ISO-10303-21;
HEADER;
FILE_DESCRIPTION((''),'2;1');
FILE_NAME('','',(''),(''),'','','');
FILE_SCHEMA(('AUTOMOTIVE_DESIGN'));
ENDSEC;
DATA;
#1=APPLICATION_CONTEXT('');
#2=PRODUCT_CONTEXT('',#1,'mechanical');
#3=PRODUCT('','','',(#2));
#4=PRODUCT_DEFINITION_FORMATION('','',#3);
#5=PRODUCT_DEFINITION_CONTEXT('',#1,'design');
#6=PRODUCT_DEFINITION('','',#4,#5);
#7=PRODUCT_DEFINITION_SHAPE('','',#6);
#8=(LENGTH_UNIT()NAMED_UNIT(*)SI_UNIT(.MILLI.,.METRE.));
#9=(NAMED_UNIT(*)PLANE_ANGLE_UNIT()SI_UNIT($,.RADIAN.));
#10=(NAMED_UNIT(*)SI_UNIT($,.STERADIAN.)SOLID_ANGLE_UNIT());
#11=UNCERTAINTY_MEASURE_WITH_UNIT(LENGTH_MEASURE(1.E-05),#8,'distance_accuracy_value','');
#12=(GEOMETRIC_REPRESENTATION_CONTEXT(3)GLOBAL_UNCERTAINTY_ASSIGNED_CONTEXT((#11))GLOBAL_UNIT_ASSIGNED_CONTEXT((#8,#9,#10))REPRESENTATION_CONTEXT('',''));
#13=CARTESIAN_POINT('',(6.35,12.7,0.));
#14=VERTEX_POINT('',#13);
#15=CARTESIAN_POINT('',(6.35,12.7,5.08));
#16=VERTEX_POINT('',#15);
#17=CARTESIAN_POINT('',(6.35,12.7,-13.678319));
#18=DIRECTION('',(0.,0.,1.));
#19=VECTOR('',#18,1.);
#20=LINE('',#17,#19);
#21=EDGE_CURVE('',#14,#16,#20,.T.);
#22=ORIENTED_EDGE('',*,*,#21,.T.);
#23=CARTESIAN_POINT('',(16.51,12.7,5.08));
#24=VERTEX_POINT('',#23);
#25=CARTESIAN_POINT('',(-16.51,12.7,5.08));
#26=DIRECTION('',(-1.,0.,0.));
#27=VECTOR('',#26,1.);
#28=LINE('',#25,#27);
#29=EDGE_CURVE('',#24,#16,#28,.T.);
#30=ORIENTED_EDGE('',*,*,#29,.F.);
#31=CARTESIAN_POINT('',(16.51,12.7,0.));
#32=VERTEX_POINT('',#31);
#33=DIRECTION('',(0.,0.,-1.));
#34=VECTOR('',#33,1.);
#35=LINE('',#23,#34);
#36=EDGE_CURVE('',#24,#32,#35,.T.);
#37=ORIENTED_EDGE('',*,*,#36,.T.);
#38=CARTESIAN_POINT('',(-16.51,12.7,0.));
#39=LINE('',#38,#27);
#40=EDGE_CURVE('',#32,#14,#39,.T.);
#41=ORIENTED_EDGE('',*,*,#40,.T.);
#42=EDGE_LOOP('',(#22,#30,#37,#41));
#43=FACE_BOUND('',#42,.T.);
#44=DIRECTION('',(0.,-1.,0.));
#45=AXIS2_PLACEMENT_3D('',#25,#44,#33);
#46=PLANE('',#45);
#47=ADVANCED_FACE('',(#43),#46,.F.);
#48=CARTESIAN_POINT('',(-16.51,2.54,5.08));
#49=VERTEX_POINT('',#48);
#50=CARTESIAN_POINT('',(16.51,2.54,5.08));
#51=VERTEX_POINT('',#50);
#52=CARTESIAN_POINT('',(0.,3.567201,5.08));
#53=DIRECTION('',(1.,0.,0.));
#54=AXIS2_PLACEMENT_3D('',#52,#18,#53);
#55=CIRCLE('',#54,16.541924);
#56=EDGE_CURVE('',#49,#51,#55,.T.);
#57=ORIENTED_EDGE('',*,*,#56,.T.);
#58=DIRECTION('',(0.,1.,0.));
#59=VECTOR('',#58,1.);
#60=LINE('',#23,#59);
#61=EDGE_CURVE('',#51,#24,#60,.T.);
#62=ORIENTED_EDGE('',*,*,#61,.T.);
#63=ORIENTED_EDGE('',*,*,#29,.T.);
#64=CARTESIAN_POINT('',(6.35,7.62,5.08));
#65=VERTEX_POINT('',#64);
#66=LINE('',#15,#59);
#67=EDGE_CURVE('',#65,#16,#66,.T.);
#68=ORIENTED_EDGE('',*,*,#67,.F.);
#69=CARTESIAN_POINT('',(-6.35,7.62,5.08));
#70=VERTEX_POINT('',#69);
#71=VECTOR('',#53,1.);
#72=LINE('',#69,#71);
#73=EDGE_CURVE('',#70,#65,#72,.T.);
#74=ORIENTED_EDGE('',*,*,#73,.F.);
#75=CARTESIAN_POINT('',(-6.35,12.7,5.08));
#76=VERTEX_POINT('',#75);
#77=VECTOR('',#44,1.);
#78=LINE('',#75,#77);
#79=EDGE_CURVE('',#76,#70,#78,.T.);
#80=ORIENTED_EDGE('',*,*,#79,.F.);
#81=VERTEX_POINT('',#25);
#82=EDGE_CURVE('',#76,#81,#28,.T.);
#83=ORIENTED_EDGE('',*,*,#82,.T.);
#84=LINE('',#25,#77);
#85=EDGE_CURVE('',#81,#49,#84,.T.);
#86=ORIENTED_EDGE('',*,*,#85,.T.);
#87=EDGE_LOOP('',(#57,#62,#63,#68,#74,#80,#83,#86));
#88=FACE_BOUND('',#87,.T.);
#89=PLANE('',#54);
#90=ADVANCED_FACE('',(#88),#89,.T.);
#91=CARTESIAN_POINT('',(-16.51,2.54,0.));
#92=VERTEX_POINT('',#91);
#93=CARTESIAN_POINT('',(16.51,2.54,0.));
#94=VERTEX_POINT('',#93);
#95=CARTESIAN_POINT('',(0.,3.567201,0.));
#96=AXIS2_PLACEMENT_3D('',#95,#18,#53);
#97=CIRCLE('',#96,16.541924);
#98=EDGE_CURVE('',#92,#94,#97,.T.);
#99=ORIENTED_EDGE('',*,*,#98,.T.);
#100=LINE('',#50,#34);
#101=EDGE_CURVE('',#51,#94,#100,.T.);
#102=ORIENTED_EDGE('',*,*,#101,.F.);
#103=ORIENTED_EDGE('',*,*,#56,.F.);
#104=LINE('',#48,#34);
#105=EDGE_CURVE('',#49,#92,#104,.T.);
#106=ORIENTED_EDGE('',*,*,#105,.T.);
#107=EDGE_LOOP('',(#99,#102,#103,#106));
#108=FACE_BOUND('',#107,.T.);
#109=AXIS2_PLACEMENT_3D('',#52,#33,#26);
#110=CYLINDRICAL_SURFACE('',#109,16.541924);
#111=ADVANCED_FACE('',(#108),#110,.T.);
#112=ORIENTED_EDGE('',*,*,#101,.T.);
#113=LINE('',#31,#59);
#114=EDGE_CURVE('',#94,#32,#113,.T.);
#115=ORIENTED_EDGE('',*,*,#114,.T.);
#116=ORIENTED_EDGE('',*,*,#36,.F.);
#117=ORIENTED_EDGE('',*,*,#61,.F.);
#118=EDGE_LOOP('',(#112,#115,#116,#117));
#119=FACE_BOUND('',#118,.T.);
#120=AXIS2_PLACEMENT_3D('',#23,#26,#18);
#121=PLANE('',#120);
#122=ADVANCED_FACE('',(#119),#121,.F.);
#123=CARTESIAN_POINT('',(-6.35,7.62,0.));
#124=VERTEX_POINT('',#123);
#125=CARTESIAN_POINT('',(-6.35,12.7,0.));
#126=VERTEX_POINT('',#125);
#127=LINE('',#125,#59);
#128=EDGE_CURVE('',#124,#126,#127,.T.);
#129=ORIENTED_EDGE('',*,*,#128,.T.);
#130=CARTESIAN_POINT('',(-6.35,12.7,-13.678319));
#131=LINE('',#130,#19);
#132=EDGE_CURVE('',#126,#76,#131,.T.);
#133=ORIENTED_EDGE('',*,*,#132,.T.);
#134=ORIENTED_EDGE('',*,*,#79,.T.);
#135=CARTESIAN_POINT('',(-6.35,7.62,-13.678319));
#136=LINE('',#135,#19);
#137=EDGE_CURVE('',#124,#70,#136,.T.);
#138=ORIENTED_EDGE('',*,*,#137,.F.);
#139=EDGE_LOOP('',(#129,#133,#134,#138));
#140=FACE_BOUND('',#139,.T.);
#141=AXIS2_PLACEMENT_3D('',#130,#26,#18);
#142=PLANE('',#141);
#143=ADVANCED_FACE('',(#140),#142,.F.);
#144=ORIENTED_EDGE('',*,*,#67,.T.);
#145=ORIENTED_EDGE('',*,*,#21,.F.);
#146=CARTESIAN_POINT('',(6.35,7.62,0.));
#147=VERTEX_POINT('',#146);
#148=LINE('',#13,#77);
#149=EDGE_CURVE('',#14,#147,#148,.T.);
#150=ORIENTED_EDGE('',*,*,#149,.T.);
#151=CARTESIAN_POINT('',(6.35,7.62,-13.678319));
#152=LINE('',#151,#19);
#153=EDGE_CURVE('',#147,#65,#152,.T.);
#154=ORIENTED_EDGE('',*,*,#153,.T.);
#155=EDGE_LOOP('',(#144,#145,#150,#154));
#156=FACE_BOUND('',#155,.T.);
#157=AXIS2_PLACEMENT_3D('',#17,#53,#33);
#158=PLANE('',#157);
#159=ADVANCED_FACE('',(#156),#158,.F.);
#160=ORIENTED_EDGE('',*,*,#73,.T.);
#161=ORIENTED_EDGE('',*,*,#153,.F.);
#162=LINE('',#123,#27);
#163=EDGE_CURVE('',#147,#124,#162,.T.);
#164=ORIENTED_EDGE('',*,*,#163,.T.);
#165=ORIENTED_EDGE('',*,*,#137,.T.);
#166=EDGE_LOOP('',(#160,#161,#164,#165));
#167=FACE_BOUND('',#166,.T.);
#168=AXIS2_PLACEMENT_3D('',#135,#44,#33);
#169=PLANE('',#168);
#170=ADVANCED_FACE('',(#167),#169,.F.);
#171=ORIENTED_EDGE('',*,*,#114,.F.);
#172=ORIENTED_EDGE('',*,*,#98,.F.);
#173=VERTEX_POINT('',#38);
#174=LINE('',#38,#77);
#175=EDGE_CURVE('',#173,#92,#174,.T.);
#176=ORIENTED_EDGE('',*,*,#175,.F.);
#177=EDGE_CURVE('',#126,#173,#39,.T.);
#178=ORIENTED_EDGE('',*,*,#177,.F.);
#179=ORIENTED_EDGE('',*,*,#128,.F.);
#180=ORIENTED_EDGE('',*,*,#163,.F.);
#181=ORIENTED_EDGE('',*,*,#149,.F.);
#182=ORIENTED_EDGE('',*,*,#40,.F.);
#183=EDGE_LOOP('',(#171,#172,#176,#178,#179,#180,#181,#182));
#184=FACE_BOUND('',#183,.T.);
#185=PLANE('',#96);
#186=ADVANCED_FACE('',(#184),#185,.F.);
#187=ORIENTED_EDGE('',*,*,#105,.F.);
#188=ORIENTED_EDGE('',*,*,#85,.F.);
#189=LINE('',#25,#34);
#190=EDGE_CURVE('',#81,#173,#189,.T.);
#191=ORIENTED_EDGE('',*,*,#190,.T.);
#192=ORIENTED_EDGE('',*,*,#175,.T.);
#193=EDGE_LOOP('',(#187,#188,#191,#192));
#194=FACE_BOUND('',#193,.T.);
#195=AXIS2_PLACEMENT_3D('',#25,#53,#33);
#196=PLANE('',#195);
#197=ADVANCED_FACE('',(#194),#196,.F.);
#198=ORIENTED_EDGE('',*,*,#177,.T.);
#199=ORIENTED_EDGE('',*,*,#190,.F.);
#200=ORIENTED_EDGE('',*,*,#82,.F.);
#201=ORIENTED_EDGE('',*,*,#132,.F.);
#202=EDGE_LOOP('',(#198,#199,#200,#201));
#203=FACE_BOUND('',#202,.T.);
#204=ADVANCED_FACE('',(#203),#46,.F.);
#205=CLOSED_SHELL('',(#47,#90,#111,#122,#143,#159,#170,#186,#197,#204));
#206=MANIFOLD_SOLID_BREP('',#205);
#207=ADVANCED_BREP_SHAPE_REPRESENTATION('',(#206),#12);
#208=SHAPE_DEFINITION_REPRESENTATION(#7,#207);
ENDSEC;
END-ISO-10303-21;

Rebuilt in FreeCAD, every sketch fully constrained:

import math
import FreeCAD as App
import Part
import Sketcher

V = App.Vector
Q = App.Units.Quantity

doc = App.newDocument("Part")
body = doc.addObject("PartDesign::Body", "Body")

sketch1 = doc.addObject("Sketcher::SketchObject", "Sketch")
body.addObject(sketch1)
sketch1.AttachmentSupport = (doc.XY_Plane, [""])
sketch1.MapMode = "FlatFace"
sketch1.addGeometry([
    Part.LineSegment(V(17, 13, 0), V(-17, 13, 0)),
    Part.LineSegment(V(-17, 13, 0), V(-17, 3, 0)),
    Part.ArcOfCircle(Part.Circle(V(0, 4, 0), V(0, 0, 1), 17), math.radians(-176), math.radians(-4)),
    Part.LineSegment(V(17, 3, 0), V(17, 13, 0)),
], False)
sketch1.addConstraint([
    Sketcher.Constraint("Coincident", 0, 2, 1, 1),
    Sketcher.Constraint("Coincident", 1, 2, 2, 1),
    Sketcher.Constraint("Coincident", 2, 2, 3, 1),
    Sketcher.Constraint("Coincident", 3, 2, 0, 1),
    Sketcher.Constraint("Horizontal", 0),
    Sketcher.Constraint("Vertical", 1),
    Sketcher.Constraint("Vertical", 3),
    Sketcher.Constraint("Symmetric", 1, 2, 2, 2, -2),
    Sketcher.Constraint("DistanceX", 0, 2, 0, 1, Q("1.3 in")),
    Sketcher.Constraint("DistanceY", 1, 2, 1, 1, Q("0.4 in")),
    Sketcher.Constraint("DistanceY", -1, 1, 0, 2, Q("0.5 in")),
    Sketcher.Constraint("Radius", 2, 16.541924),
])
pad1 = doc.addObject("PartDesign::Pad", "Pad")
body.addObject(pad1)
pad1.Profile = sketch1
pad1.Length = Q("0.2 in")

sketch2 = doc.addObject("Sketcher::SketchObject", "Sketch001")
body.addObject(sketch2)
sketch2.AttachmentSupport = (doc.XY_Plane, [""])
sketch2.MapMode = "FlatFace"
sketch2.AttachmentOffset = App.Placement(V(0, 0, 0.2 * 25.4), App.Rotation())
sketch2.addGeometry([
    Part.LineSegment(V(-6, 13, 0), V(-6, 8, 0)),
    Part.LineSegment(V(-6, 8, 0), V(6, 8, 0)),
    Part.LineSegment(V(6, 8, 0), V(6, 13, 0)),
    Part.LineSegment(V(6, 13, 0), V(-6, 13, 0)),
], False)
sketch2.addConstraint([
    Sketcher.Constraint("Coincident", 0, 2, 1, 1),
    Sketcher.Constraint("Coincident", 1, 2, 2, 1),
    Sketcher.Constraint("Coincident", 2, 2, 3, 1),
    Sketcher.Constraint("Coincident", 3, 2, 0, 1),
    Sketcher.Constraint("Vertical", 0),
    Sketcher.Constraint("Horizontal", 1),
    Sketcher.Constraint("Vertical", 2),
    Sketcher.Constraint("Horizontal", 3),
    Sketcher.Constraint("DistanceX", 1, 1, 1, 2, Q("0.5 in")),
    Sketcher.Constraint("DistanceY", 0, 2, 0, 1, Q("0.2 in")),
    Sketcher.Constraint("DistanceY", -1, 1, 0, 2, Q("0.3 in")),
    Sketcher.Constraint("DistanceX", 0, 2, -1, 1, Q("0.25 in")),
])
pocket1 = doc.addObject("PartDesign::Pocket", "Pocket")
body.addObject(pocket1)
pocket1.Profile = sketch2
pocket1.Length = Q("0.2 in")

doc.recompute()
